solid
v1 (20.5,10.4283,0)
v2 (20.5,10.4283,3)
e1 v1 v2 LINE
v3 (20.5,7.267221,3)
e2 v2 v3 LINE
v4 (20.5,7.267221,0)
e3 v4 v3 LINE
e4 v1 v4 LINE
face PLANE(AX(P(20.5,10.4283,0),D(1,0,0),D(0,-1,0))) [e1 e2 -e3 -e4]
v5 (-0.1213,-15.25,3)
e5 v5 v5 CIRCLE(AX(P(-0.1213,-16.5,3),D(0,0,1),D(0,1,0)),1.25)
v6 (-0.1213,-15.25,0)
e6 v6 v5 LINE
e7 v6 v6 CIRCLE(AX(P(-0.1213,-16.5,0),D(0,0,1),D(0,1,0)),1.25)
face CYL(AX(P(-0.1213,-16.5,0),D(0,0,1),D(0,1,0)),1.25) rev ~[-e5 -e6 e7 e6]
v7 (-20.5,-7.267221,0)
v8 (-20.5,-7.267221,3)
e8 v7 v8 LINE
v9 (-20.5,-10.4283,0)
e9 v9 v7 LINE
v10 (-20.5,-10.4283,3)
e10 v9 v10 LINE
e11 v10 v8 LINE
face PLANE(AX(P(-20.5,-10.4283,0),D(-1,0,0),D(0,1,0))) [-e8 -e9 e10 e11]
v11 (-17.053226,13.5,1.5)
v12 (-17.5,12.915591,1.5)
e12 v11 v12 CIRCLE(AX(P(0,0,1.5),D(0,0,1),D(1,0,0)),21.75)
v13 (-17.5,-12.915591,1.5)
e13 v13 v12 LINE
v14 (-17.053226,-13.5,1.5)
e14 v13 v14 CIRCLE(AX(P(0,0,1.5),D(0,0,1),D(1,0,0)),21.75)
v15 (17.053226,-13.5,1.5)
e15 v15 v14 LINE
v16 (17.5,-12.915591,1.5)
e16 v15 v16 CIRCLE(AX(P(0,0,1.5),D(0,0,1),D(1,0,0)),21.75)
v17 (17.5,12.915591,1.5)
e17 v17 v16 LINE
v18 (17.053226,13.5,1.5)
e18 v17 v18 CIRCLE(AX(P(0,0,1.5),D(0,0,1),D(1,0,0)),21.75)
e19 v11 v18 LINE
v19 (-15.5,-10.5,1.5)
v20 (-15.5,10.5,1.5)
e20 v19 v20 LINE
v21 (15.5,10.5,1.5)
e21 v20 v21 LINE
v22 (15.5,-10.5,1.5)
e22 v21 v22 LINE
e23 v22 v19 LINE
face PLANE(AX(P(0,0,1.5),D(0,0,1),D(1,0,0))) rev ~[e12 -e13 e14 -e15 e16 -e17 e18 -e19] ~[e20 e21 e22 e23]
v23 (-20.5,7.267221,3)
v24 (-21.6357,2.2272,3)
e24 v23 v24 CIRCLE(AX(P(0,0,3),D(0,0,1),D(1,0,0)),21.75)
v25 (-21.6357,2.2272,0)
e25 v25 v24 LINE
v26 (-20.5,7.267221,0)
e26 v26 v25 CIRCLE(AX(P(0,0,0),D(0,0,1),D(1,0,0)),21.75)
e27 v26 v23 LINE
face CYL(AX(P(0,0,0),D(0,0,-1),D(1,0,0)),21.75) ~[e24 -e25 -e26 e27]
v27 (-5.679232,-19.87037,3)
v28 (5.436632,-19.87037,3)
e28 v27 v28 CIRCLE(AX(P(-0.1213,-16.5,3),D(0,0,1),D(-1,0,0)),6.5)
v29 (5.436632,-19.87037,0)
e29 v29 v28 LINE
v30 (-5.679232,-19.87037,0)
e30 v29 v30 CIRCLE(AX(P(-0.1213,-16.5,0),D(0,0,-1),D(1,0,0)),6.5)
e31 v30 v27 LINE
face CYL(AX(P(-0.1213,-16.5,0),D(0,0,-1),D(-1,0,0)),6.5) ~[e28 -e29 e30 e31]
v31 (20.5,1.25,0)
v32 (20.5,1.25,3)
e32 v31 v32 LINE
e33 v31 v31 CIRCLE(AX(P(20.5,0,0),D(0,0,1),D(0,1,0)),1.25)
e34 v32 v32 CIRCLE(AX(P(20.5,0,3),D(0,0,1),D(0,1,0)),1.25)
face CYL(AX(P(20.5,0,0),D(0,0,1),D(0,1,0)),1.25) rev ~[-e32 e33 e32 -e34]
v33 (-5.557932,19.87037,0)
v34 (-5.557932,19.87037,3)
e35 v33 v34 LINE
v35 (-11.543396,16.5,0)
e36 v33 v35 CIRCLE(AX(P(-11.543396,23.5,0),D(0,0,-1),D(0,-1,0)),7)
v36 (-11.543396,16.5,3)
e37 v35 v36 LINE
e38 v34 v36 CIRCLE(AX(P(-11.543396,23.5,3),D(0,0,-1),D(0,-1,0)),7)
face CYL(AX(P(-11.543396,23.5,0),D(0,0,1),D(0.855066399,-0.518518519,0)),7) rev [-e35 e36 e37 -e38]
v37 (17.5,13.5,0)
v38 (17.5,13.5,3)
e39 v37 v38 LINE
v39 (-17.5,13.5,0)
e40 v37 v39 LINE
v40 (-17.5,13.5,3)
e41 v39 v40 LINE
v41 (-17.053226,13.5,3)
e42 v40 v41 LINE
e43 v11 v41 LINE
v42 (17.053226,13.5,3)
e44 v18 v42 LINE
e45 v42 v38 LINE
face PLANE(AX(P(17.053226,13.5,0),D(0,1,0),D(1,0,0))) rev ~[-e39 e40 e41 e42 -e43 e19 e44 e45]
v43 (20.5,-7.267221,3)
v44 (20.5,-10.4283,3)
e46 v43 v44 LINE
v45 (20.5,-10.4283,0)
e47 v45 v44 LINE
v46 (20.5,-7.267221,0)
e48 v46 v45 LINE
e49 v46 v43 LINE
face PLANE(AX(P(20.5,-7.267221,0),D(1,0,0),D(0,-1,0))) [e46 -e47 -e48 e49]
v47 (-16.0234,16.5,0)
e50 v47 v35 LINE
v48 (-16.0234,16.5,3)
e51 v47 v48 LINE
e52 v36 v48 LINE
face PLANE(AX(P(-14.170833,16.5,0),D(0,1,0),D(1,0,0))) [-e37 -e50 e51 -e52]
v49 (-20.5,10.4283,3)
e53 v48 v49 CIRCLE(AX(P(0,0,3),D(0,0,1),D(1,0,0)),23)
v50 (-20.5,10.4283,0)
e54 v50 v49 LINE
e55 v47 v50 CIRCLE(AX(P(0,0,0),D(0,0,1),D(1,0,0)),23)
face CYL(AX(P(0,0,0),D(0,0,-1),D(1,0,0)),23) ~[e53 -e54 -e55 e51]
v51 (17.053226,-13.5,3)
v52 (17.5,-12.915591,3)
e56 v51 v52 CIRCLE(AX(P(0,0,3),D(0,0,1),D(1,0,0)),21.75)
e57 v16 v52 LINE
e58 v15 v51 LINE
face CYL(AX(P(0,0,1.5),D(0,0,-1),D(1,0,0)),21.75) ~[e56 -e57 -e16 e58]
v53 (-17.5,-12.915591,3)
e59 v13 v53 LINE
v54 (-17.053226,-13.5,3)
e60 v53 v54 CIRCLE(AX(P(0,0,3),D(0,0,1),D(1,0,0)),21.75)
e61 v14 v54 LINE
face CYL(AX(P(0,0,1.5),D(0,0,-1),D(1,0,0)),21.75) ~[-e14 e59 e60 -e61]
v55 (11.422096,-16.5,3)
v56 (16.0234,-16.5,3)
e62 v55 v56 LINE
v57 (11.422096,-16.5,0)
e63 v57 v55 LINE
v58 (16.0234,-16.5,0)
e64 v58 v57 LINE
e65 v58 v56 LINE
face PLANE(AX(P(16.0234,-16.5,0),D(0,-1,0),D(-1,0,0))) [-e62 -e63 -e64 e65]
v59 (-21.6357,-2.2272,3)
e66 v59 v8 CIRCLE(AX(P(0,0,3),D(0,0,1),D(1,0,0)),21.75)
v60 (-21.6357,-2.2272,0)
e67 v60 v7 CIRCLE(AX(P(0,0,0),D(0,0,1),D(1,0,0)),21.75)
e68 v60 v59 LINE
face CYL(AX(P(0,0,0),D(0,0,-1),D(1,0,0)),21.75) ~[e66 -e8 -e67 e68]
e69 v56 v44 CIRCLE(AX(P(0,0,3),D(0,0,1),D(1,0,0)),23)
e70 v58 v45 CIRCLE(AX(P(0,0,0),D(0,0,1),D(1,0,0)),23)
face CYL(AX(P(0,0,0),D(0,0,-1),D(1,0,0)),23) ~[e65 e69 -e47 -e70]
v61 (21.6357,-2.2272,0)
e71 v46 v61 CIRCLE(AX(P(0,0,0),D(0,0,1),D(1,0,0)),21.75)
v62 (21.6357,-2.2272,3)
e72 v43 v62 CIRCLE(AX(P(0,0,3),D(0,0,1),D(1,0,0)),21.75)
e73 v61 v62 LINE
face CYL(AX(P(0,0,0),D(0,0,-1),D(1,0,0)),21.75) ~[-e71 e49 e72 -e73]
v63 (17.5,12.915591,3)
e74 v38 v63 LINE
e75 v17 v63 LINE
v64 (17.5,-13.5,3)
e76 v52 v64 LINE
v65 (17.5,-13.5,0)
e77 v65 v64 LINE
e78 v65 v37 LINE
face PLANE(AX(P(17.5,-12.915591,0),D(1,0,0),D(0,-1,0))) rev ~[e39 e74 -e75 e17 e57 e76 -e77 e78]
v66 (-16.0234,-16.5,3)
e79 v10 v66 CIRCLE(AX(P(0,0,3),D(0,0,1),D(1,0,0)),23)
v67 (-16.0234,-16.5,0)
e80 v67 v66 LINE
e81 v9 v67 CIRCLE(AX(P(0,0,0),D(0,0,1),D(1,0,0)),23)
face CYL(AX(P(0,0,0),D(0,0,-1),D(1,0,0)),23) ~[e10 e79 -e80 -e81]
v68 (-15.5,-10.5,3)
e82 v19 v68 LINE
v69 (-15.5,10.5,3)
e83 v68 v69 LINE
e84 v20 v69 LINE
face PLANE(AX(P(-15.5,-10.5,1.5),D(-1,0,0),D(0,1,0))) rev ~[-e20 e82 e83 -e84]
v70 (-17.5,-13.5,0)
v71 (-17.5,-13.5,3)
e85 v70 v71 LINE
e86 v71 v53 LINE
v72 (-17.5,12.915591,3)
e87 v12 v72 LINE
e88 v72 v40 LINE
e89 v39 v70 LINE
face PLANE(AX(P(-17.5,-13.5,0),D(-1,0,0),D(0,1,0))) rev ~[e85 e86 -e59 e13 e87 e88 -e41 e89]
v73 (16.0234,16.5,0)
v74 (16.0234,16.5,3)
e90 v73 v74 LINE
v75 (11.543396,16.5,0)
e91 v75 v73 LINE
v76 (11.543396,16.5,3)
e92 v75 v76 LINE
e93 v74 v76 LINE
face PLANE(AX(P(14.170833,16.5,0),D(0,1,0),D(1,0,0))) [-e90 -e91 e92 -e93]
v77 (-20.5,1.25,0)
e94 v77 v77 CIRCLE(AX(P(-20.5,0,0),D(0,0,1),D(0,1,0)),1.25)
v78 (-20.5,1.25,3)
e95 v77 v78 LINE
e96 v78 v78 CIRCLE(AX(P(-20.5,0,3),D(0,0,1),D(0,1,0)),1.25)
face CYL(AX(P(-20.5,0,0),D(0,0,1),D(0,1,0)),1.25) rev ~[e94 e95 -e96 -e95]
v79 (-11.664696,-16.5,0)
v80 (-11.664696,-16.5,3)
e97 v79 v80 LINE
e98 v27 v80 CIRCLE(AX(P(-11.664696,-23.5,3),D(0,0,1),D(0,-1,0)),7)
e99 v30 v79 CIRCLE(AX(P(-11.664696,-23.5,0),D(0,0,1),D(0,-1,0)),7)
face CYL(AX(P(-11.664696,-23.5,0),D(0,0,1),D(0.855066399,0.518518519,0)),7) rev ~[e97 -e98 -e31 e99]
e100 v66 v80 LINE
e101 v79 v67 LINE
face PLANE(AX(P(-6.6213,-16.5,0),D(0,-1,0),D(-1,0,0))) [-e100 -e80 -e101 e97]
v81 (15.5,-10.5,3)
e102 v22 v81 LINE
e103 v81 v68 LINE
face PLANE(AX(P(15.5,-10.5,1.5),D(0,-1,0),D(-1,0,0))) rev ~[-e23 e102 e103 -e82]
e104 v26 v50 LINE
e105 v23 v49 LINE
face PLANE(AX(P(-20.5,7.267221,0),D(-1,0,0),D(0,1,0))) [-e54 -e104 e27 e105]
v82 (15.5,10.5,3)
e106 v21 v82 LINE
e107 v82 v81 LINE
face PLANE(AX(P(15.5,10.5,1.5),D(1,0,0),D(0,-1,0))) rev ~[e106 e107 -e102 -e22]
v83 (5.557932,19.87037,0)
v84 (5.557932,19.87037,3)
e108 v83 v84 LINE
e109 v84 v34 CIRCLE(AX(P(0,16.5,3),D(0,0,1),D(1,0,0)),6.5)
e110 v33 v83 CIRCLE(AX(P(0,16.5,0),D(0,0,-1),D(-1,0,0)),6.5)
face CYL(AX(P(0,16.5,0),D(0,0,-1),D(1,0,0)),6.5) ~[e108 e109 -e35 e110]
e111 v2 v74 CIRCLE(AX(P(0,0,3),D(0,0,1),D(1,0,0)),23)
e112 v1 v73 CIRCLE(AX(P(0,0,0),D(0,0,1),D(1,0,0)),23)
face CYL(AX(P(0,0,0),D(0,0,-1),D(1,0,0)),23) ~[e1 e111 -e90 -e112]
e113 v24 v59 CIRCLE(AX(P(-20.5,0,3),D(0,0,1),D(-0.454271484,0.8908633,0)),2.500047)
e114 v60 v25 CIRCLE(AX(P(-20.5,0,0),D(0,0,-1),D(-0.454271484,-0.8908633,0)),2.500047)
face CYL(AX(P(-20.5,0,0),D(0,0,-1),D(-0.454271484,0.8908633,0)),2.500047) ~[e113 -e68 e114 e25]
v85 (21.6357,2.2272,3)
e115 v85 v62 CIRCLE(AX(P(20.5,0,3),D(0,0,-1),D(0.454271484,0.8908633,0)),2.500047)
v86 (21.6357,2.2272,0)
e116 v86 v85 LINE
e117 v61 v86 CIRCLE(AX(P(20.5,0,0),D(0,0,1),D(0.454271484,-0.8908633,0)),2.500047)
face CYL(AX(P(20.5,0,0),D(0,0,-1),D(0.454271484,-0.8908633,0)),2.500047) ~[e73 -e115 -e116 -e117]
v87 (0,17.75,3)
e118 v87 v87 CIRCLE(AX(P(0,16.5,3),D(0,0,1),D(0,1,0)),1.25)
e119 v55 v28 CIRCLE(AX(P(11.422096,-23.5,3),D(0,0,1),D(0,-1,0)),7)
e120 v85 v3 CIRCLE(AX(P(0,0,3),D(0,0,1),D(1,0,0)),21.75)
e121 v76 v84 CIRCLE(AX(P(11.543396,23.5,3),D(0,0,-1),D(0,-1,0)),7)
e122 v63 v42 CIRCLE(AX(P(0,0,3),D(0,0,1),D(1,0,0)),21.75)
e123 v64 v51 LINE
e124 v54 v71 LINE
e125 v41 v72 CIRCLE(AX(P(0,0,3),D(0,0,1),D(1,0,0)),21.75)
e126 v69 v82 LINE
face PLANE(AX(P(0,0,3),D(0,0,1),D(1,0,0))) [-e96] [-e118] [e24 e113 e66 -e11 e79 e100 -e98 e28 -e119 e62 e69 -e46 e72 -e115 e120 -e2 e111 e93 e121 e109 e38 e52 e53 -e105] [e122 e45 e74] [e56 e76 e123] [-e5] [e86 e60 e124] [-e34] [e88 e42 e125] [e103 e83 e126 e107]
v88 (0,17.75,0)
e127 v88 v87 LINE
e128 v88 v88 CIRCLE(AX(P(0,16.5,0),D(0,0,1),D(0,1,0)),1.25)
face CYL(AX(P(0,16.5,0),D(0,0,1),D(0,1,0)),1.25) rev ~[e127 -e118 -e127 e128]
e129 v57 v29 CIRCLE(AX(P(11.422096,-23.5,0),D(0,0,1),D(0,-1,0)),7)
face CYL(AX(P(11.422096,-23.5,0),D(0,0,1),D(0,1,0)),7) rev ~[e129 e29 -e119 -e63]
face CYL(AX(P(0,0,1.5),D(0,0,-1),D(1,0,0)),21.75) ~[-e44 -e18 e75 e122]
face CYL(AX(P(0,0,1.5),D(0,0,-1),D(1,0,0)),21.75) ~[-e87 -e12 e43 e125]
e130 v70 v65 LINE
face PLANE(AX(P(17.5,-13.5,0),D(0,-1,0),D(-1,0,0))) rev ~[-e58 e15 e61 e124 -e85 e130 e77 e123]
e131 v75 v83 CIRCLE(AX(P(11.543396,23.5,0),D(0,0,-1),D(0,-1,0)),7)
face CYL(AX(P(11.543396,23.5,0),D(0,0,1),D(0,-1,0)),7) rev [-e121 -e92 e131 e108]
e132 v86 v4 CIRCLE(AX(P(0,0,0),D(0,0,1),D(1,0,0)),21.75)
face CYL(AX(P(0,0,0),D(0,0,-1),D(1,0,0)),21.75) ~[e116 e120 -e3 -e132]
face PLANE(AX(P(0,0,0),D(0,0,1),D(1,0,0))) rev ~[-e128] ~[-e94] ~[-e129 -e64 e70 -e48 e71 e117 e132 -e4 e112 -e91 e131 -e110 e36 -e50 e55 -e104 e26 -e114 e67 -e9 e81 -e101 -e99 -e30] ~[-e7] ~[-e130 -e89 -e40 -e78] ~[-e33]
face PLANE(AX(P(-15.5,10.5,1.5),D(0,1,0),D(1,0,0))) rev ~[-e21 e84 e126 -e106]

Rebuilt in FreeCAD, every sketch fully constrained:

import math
import FreeCAD as App
import Part
import Sketcher
Q = App.Units.Quantity


def edges_at(feature, points):
    """Names of the edges that pass closest to the given points."""
    edges = feature.Shape.Edges
    near = lambda p: min(range(len(edges)), key=lambda i: edges[i].distToShape(Part.Vertex(*p))[0])
    return sorted({f"Edge{near(p) + 1}" for p in points})


def add_polygon(sketch, points):
    """Adds a closed chain of lines whose ends are joined by coincident constraints."""
    first, n = sketch.GeometryCount, len(points)
    for a, b in zip(points, points[1:] + points[:1]):
        sketch.addGeometry(Part.LineSegment(App.Vector(*a, 0), App.Vector(*b, 0)), False)
    for i in range(n):
        sketch.addConstraint(Sketcher.Constraint("Coincident", first + i, 2, first + (i + 1) % n, 1))

doc = App.newDocument("Part")
body = doc.addObject("PartDesign::Body", "Body")

sketch1 = body.newObject("Sketcher::SketchObject", "Sketch")
sketch1.AttachmentSupport = (doc.getObject("XY_Plane"), [""])
sketch1.MapMode = "FlatFace"
sketch1.addGeometry(Part.ArcOfCircle(Part.Circle(App.Vector(0, 0, 0), App.Vector(0, 0, 1), 21.8), math.radians(-19.52), math.radians(-5.88)), False)
sketch1.addGeometry(Part.ArcOfCircle(Part.Circle(App.Vector(20.5, 0, 0), App.Vector(0, 0, 1), 2.5), math.radians(-63), math.radians(63)), False)
sketch1.addGeometry(Part.ArcOfCircle(Part.Circle(App.Vector(0, 0, 0), App.Vector(0, 0, 1), 21.8), math.radians(5.88), math.radians(19.52)), False)
sketch1.addGeometry(Part.LineSegment(App.Vector(20.5, 7.3, 0), App.Vector(20.5, 10.4, 0)), False)
sketch1.addGeometry(Part.ArcOfCircle(Part.Circle(App.Vector(0, 0, 0), App.Vector(0, 0, 1), 23), math.radians(26.96), math.radians(45.84)), False)
sketch1.addGeometry(Part.LineSegment(App.Vector(16, 16.5, 0), App.Vector(6.5, 16.5, 0)), False)
sketch1.addGeometry(Part.ArcOfCircle(Part.Circle(App.Vector(0, 16.5, 0), App.Vector(0, 0, 1), 6.5), math.radians(0), math.radians(180)), False)
sketch1.addGeometry(Part.LineSegment(App.Vector(-6.5, 16.5, 0), App.Vector(-16, 16.5, 0)), False)
sketch1.addGeometry(Part.ArcOfCircle(Part.Circle(App.Vector(0, 0, 0), App.Vector(0, 0, 1), 23), math.radians(134.16), math.radians(153.04)), False)
sketch1.addGeometry(Part.LineSegment(App.Vector(-20.5, 10.4, 0), App.Vector(-20.5, 7.3, 0)), False)
sketch1.addGeometry(Part.ArcOfCircle(Part.Circle(App.Vector(0, 0, 0), App.Vector(0, 0, 1), 21.8), math.radians(160.48), math.radians(174.12)), False)
sketch1.addGeometry(Part.ArcOfCircle(Part.Circle(App.Vector(-20.5, 0, 0), App.Vector(0, 0, 1), 2.5), math.radians(117), math.radians(243)), False)
sketch1.addGeometry(Part.ArcOfCircle(Part.Circle(App.Vector(0, 0, 0), App.Vector(0, 0, 1), 21.8), math.radians(-174.12), math.radians(-160.48)), False)
sketch1.addGeometry(Part.LineSegment(App.Vector(-20.5, -7.3, 0), App.Vector(-20.5, -10.4, 0)), False)
sketch1.addGeometry(Part.ArcOfCircle(Part.Circle(App.Vector(0, 0, 0), App.Vector(0, 0, 1), 23), math.radians(-153.04), math.radians(-134.16)), False)
sketch1.addGeometry(Part.LineSegment(App.Vector(-16, -16.5, 0), App.Vector(-6.6, -16.5, 0)), False)
sketch1.addGeometry(Part.ArcOfCircle(Part.Circle(App.Vector(-0.1, -16.5, 0), App.Vector(0, 0, 1), 6.5), math.radians(180), math.radians(360)), False)
sketch1.addGeometry(Part.LineSegment(App.Vector(6.4, -16.5, 0), App.Vector(16, -16.5, 0)), False)
sketch1.addGeometry(Part.ArcOfCircle(Part.Circle(App.Vector(0, 0, 0), App.Vector(0, 0, 1), 23), math.radians(-45.84), math.radians(-26.96)), False)
sketch1.addGeometry(Part.LineSegment(App.Vector(20.5, -10.4, 0), App.Vector(20.5, -7.3, 0)), False)
add_polygon(sketch1, [(17.5, -13.5), (-17.5, -13.5), (-17.5, 13.5), (17.5, 13.5)])
sketch1.addConstraint([
    Sketcher.Constraint("Coincident", 0, 2, 1, 1),
    Sketcher.Constraint("Coincident", 1, 2, 2, 1),
    Sketcher.Constraint("Coincident", 2, 2, 3, 1),
    Sketcher.Constraint("Coincident", 3, 2, 4, 1),
    Sketcher.Constraint("Coincident", 4, 2, 5, 1),
    Sketcher.Constraint("Coincident", 5, 2, 6, 1),
    Sketcher.Constraint("Coincident", 6, 2, 7, 1),
    Sketcher.Constraint("Coincident", 7, 2, 8, 1),
    Sketcher.Constraint("Coincident", 8, 2, 9, 1),
    Sketcher.Constraint("Coincident", 9, 2, 10, 1),
    Sketcher.Constraint("Coincident", 10, 2, 11, 1),
    Sketcher.Constraint("Coincident", 11, 2, 12, 1),
    Sketcher.Constraint("Coincident", 12, 2, 13, 1),
    Sketcher.Constraint("Coincident", 13, 2, 14, 1),
    Sketcher.Constraint("Coincident", 14, 2, 15, 1),
    Sketcher.Constraint("Coincident", 15, 2, 16, 1),
    Sketcher.Constraint("Coincident", 16, 2, 17, 1),
    Sketcher.Constraint("Coincident", 17, 2, 18, 1),
    Sketcher.Constraint("Coincident", 18, 2, 19, 1),
    Sketcher.Constraint("Coincident", 19, 2, 0, 1),
    Sketcher.Constraint("Vertical", 3),
    Sketcher.Constraint("Horizontal", 5),
    Sketcher.Constraint("Horizontal", 7),
    Sketcher.Constraint("Vertical", 9),
    Sketcher.Constraint("Vertical", 13),
    Sketcher.Constraint("Horizontal", 15),
    Sketcher.Constraint("Horizontal", 17),
    Sketcher.Constraint("Vertical", 19),
    Sketcher.Constraint("Horizontal", 20),
    Sketcher.Constraint("Vertical", 21),
    Sketcher.Constraint("Horizontal", 22),
    Sketcher.Constraint("Vertical", 23),
    Sketcher.Constraint("Coincident", 0, 3, -1, 1),
    Sketcher.Constraint("Coincident", 2, 3, -1, 1),
    Sketcher.Constraint("Coincident", 4, 3, -1, 1),
    Sketcher.Constraint("Coincident", 8, 3, -1, 1),
    Sketcher.Constraint("Coincident", 10, 3, -1, 1),
    Sketcher.Constraint("Coincident", 12, 3, -1, 1),
    Sketcher.Constraint("Coincident", 14, 3, -1, 1),
    Sketcher.Constraint("Coincident", 18, 3, -1, 1),
    Sketcher.Constraint("Equal", 0, 2),
    Sketcher.Constraint("Equal", 4, 8),
    Sketcher.Constraint("Equal", 2, 10),
    Sketcher.Constraint("Equal", 1, 11),
    Sketcher.Constraint("Equal", 10, 12),
    Sketcher.Constraint("Equal", 8, 14),
    Sketcher.Constraint("Equal", 6, 16),
    Sketcher.Constraint("Equal", 14, 18),
    Sketcher.Constraint("Symmetric", 1, 3, 11, 3, -1, 1),
    Sketcher.Constraint("Symmetric", 20, 2, 22, 2, -1, 1),
    Sketcher.Constraint("Symmetric", 5, 2, 6, 2, -2),
    Sketcher.Constraint("PointOnObject", 1, 3, -1),
    Sketcher.Constraint("Horizontal", 6, 3, 4, 2),
    Sketcher.Constraint("Horizontal", 3, 2, 8, 2),
    Sketcher.Constraint("Horizontal", 16, 3, 14, 2),
    Sketcher.Constraint("Horizontal", 15, 2, 16, 2),
    Sketcher.Constraint("Horizontal", 13, 2, 18, 2),
    Sketcher.Constraint("Vertical", 1, 3, 2, 2),
    Sketcher.Constraint("Vertical", 9, 2, 12, 2),
    Sketcher.Constraint("Vertical", 7, 2, 14, 2),
    Sketcher.Constraint("Radius", 4, Q("23 mm")),
    Sketcher.Constraint("DistanceX", 20, 2, 20, 1, Q("35 mm")),
    Sketcher.Constraint("DistanceY", 21, 1, 21, 2, Q("27 mm")),
    Sketcher.Constraint("DistanceY", 14, 2, 20, 2, Q("3 mm")),
    Sketcher.Constraint("DistanceX", 13, 2, 20, 2, Q("3 mm")),
    Sketcher.Constraint("Radius", 1, Q("2.5 mm")),
    Sketcher.Constraint("Radius", 6, Q("6.5 mm")),
    Sketcher.Constraint("Radius", 0, Q("21.75 mm")),
    Sketcher.Constraint("DistanceX", 15, 1, 15, 2, Q("9.402 mm")),
])
pad1 = body.newObject("PartDesign::Pad", "Pad")
pad1.Profile = sketch1
pad1.Length = 3

sketch2 = body.newObject("Sketcher::SketchObject", "Sketch001")
sketch2.AttachmentSupport = (doc.getObject("XY_Plane"), [""])
sketch2.MapMode = "FlatFace"
sketch2.AttachmentOffset = App.Placement(App.Vector(0, 0, 1.5), App.Rotation())
sketch2.addGeometry(Part.LineSegment(App.Vector(17.5, -12.9, 0), App.Vector(17.5, 12.9, 0)), False)
sketch2.addGeometry(Part.ArcOfCircle(Part.Circle(App.Vector(0, 0, 0), App.Vector(0, 0, 1), 21.8), math.radians(36.43), math.radians(38.37)), False)
sketch2.addGeometry(Part.LineSegment(App.Vector(17.1, 13.5, 0), App.Vector(-17.1, 13.5, 0)), False)
sketch2.addGeometry(Part.ArcOfCircle(Part.Circle(App.Vector(0, 0, 0), App.Vector(0, 0, 1), 21.8), math.radians(141.63), math.radians(143.57)), False)
sketch2.addGeometry(Part.LineSegment(App.Vector(-17.5, 12.9, 0), App.Vector(-17.5, -12.9, 0)), False)
sketch2.addGeometry(Part.ArcOfCircle(Part.Circle(App.Vector(0, 0, 0), App.Vector(0, 0, 1), 21.8), math.radians(-143.57), math.radians(-141.63)), False)
sketch2.addGeometry(Part.LineSegment(App.Vector(-17.1, -13.5, 0), App.Vector(17.1, -13.5, 0)), False)
sketch2.addGeometry(Part.ArcOfCircle(Part.Circle(App.Vector(0, 0, 0), App.Vector(0, 0, 1), 21.8), math.radians(-38.37), math.radians(-36.43)), False)
add_polygon(sketch2, [(-15.5, -10.5), (-15.5, 10.5), (15.5, 10.5), (15.5, -10.5)])
sketch2.addConstraint([
    Sketcher.Constraint("Coincident", 0, 2, 1, 1),
    Sketcher.Constraint("Coincident", 1, 2, 2, 1),
    Sketcher.Constraint("Coincident", 2, 2, 3, 1),
    Sketcher.Constraint("Coincident", 3, 2, 4, 1),
    Sketcher.Constraint("Coincident", 4, 2, 5, 1),
    Sketcher.Constraint("Coincident", 5, 2, 6, 1),
    Sketcher.Constraint("Coincident", 6, 2, 7, 1),
    Sketcher.Constraint("Coincident", 7, 2, 0, 1),
    Sketcher.Constraint("Vertical", 0),
    Sketcher.Constraint("Horizontal", 2),
    Sketcher.Constraint("Vertical", 4),
    Sketcher.Constraint("Horizontal", 6),
    Sketcher.Constraint("Vertical", 8),
    Sketcher.Constraint("Horizontal", 9),
    Sketcher.Constraint("Vertical", 10),
    Sketcher.Constraint("Horizontal", 11),
    Sketcher.Constraint("Coincident", 1, 3, -1, 1),
    Sketcher.Constraint("Coincident", 3, 3, -1, 1),
    Sketcher.Constraint("Coincident", 5, 3, -1, 1),
    Sketcher.Constraint("Coincident", 7, 3, -1, 1),
    Sketcher.Constraint("Equal", 1, 3),
    Sketcher.Constraint("Equal", 3, 5),
    Sketcher.Constraint("Equal", 5, 7),
    Sketcher.Constraint("Symmetric", 8, 2, 10, 2, -1, 1),
    Sketcher.Constraint("Horizontal", 0, 2, 3, 2),
    Sketcher.Constraint("Vertical", 2, 2, 5, 2),
    Sketcher.Constraint("DistanceX", 3, 2, 8, 2, Q("2 mm")),
    Sketcher.Constraint("DistanceY", 8, 2, 2, 2, Q("3 mm")),
    Sketcher.Constraint("DistanceX", 9, 1, 9, 2, Q("31 mm")),
    Sketcher.Constraint("DistanceY", 8, 1, 8, 2, Q("21 mm")),
    Sketcher.Constraint("Radius", 1, Q("21.75 mm")),
])
pad2 = body.newObject("PartDesign::Pad", "Pad001")
pad2.Profile = sketch2
pad2.Length = 1.5

sketch3 = body.newObject("Sketcher::SketchObject", "Sketch002")
sketch3.AttachmentSupport = (doc.getObject("XY_Plane"), [""])
sketch3.MapMode = "FlatFace"
sketch3.addGeometry([
    Part.Circle(App.Vector(0, 16.5, 0), App.Vector(0, 0, 1), 1.2),
    Part.Circle(App.Vector(20.5, 0, 0), App.Vector(0, 0, 1), 1.2),
    Part.Circle(App.Vector(-0.1, -16.5, 0), App.Vector(0, 0, 1), 1.2),
    Part.Circle(App.Vector(-20.5, 0, 0), App.Vector(0, 0, 1), 1.2),
], False)
sketch3.addConstraint([
    Sketcher.Constraint("Equal", 0, 1),
    Sketcher.Constraint("Equal", 1, 2),
    Sketcher.Constraint("Equal", 2, 3),
    Sketcher.Constraint("Symmetric", 1, 3, 3, 3, -1, 1),
    Sketcher.Constraint("PointOnObject", 0, 3, -2),
    Sketcher.Constraint("PointOnObject", 1, 3, -1),
    Sketcher.Constraint("Diameter", 0, Q("2.5 mm")),
    Sketcher.Constraint("DistanceY", 2, 3, 0, 3, Q("33 mm")),
    Sketcher.Constraint("DistanceX", 3, 3, 1, 3, Q("41 mm")),
    Sketcher.Constraint("DistanceY", -1, 1, 0, 3, Q("16.5 mm")),
    Sketcher.Constraint("DistanceX", 2, 3, -1, 1, Q("0.1213 mm")),
])
doc.recompute()
hole = body.newObject("PartDesign::Hole", "Hole")
hole.Profile = sketch3
hole.ThreadType = "None"
hole.Diameter = 2.5
hole.DepthType = "ThroughAll"
hole.Reversed = True
doc.recompute()

fillet = body.newObject("PartDesign::Fillet", "Fillet")
fillet.Base = (hole, edges_at(hole, [
    (-6.621, -16.5, 1.5),
    (6.379, -16.5, 1.5),
    (6.5, 16.5, 1.5),
    (-6.5, 16.5, 1.5),
]))
fillet.Radius = 7

doc.recompute()
